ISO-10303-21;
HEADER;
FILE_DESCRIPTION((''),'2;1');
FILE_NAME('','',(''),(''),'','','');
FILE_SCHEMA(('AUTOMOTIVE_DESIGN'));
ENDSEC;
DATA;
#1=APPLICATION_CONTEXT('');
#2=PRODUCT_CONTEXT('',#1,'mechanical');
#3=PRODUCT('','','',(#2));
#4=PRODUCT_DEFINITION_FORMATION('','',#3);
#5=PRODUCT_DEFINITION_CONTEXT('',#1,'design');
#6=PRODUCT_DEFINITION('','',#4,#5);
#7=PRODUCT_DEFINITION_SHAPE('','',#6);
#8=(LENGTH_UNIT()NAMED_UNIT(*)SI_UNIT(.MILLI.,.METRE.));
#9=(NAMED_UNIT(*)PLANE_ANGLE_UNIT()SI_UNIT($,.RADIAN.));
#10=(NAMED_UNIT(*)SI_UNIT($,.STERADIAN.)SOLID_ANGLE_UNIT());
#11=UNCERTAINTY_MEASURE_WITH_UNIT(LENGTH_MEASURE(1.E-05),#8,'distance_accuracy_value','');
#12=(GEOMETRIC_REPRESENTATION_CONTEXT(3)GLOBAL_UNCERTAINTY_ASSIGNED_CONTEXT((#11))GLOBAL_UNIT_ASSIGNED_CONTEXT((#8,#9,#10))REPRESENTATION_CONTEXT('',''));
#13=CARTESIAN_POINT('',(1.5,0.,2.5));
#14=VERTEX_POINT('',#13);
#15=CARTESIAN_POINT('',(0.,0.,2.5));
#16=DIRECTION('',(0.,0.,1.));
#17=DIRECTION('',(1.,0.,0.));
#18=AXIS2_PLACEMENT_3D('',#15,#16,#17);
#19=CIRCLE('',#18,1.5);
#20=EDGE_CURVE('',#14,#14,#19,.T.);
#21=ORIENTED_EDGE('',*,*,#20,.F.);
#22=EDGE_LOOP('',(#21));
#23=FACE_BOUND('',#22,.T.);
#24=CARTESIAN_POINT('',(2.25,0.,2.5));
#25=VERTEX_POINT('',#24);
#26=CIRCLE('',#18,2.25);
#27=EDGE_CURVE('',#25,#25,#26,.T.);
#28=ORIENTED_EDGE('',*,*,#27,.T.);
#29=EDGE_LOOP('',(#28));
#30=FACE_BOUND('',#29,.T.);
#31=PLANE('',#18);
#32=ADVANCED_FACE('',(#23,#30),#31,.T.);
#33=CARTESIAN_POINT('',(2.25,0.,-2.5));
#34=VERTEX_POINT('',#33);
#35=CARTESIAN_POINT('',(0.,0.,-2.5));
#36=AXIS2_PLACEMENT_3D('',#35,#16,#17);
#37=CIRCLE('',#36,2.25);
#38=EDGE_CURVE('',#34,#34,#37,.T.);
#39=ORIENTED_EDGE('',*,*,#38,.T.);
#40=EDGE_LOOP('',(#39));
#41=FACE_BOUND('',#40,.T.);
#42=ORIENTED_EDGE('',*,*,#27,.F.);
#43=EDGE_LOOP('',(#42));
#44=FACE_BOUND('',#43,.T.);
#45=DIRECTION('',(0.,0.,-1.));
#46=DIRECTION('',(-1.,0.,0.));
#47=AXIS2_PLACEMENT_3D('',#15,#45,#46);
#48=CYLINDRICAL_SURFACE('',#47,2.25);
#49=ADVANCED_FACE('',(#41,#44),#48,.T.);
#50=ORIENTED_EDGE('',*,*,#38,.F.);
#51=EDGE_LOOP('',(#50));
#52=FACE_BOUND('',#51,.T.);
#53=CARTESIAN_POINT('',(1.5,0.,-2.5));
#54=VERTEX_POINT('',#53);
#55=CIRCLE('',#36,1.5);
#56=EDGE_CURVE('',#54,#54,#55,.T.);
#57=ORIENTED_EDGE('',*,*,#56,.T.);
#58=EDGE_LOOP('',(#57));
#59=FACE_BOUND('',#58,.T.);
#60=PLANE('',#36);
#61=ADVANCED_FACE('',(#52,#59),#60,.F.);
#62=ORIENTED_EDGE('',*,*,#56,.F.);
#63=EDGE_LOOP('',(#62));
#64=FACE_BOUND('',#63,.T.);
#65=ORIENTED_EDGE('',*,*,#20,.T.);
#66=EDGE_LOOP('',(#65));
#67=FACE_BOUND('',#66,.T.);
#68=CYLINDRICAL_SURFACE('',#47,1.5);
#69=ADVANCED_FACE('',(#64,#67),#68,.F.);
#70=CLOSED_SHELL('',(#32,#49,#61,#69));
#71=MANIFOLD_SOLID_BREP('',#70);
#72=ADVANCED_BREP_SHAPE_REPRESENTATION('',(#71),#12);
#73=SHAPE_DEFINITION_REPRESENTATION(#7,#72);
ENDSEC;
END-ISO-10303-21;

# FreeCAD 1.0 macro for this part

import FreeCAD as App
import Part
import Sketcher
from FreeCAD import Vector
Q = App.Units.Quantity

doc = App.newDocument("Part")
body = doc.addObject("PartDesign::Body", "Body")

sketch1 = body.newObject("Sketcher::SketchObject", "Sketch")
sketch1.AttachmentSupport = (doc.getObject("XY_Plane"), [""])
sketch1.MapMode = "FlatFace"
sketch1.addGeometry(Part.Circle(Vector(0, 0, 0), Vector(0, 0, 1), 2.2), False)
sketch1.addGeometry(Part.Circle(Vector(0, 0, 0), Vector(0, 0, 1), 1.5), False)
sketch1.addConstraint(Sketcher.Constraint("Coincident", 0, 3, -1, 1))
sketch1.addConstraint(Sketcher.Constraint("Coincident", 1, 3, -1, 1))
sketch1.addConstraint(Sketcher.Constraint("Diameter", 1, Q("3 mm")))
sketch1.addConstraint(Sketcher.Constraint("Diameter", 0, Q("4.5 mm")))
pad1 = body.newObject("PartDesign::Pad", "Pad")
pad1.Profile = sketch1
pad1.Length = 5
pad1.Midplane = True

doc.recompute()
